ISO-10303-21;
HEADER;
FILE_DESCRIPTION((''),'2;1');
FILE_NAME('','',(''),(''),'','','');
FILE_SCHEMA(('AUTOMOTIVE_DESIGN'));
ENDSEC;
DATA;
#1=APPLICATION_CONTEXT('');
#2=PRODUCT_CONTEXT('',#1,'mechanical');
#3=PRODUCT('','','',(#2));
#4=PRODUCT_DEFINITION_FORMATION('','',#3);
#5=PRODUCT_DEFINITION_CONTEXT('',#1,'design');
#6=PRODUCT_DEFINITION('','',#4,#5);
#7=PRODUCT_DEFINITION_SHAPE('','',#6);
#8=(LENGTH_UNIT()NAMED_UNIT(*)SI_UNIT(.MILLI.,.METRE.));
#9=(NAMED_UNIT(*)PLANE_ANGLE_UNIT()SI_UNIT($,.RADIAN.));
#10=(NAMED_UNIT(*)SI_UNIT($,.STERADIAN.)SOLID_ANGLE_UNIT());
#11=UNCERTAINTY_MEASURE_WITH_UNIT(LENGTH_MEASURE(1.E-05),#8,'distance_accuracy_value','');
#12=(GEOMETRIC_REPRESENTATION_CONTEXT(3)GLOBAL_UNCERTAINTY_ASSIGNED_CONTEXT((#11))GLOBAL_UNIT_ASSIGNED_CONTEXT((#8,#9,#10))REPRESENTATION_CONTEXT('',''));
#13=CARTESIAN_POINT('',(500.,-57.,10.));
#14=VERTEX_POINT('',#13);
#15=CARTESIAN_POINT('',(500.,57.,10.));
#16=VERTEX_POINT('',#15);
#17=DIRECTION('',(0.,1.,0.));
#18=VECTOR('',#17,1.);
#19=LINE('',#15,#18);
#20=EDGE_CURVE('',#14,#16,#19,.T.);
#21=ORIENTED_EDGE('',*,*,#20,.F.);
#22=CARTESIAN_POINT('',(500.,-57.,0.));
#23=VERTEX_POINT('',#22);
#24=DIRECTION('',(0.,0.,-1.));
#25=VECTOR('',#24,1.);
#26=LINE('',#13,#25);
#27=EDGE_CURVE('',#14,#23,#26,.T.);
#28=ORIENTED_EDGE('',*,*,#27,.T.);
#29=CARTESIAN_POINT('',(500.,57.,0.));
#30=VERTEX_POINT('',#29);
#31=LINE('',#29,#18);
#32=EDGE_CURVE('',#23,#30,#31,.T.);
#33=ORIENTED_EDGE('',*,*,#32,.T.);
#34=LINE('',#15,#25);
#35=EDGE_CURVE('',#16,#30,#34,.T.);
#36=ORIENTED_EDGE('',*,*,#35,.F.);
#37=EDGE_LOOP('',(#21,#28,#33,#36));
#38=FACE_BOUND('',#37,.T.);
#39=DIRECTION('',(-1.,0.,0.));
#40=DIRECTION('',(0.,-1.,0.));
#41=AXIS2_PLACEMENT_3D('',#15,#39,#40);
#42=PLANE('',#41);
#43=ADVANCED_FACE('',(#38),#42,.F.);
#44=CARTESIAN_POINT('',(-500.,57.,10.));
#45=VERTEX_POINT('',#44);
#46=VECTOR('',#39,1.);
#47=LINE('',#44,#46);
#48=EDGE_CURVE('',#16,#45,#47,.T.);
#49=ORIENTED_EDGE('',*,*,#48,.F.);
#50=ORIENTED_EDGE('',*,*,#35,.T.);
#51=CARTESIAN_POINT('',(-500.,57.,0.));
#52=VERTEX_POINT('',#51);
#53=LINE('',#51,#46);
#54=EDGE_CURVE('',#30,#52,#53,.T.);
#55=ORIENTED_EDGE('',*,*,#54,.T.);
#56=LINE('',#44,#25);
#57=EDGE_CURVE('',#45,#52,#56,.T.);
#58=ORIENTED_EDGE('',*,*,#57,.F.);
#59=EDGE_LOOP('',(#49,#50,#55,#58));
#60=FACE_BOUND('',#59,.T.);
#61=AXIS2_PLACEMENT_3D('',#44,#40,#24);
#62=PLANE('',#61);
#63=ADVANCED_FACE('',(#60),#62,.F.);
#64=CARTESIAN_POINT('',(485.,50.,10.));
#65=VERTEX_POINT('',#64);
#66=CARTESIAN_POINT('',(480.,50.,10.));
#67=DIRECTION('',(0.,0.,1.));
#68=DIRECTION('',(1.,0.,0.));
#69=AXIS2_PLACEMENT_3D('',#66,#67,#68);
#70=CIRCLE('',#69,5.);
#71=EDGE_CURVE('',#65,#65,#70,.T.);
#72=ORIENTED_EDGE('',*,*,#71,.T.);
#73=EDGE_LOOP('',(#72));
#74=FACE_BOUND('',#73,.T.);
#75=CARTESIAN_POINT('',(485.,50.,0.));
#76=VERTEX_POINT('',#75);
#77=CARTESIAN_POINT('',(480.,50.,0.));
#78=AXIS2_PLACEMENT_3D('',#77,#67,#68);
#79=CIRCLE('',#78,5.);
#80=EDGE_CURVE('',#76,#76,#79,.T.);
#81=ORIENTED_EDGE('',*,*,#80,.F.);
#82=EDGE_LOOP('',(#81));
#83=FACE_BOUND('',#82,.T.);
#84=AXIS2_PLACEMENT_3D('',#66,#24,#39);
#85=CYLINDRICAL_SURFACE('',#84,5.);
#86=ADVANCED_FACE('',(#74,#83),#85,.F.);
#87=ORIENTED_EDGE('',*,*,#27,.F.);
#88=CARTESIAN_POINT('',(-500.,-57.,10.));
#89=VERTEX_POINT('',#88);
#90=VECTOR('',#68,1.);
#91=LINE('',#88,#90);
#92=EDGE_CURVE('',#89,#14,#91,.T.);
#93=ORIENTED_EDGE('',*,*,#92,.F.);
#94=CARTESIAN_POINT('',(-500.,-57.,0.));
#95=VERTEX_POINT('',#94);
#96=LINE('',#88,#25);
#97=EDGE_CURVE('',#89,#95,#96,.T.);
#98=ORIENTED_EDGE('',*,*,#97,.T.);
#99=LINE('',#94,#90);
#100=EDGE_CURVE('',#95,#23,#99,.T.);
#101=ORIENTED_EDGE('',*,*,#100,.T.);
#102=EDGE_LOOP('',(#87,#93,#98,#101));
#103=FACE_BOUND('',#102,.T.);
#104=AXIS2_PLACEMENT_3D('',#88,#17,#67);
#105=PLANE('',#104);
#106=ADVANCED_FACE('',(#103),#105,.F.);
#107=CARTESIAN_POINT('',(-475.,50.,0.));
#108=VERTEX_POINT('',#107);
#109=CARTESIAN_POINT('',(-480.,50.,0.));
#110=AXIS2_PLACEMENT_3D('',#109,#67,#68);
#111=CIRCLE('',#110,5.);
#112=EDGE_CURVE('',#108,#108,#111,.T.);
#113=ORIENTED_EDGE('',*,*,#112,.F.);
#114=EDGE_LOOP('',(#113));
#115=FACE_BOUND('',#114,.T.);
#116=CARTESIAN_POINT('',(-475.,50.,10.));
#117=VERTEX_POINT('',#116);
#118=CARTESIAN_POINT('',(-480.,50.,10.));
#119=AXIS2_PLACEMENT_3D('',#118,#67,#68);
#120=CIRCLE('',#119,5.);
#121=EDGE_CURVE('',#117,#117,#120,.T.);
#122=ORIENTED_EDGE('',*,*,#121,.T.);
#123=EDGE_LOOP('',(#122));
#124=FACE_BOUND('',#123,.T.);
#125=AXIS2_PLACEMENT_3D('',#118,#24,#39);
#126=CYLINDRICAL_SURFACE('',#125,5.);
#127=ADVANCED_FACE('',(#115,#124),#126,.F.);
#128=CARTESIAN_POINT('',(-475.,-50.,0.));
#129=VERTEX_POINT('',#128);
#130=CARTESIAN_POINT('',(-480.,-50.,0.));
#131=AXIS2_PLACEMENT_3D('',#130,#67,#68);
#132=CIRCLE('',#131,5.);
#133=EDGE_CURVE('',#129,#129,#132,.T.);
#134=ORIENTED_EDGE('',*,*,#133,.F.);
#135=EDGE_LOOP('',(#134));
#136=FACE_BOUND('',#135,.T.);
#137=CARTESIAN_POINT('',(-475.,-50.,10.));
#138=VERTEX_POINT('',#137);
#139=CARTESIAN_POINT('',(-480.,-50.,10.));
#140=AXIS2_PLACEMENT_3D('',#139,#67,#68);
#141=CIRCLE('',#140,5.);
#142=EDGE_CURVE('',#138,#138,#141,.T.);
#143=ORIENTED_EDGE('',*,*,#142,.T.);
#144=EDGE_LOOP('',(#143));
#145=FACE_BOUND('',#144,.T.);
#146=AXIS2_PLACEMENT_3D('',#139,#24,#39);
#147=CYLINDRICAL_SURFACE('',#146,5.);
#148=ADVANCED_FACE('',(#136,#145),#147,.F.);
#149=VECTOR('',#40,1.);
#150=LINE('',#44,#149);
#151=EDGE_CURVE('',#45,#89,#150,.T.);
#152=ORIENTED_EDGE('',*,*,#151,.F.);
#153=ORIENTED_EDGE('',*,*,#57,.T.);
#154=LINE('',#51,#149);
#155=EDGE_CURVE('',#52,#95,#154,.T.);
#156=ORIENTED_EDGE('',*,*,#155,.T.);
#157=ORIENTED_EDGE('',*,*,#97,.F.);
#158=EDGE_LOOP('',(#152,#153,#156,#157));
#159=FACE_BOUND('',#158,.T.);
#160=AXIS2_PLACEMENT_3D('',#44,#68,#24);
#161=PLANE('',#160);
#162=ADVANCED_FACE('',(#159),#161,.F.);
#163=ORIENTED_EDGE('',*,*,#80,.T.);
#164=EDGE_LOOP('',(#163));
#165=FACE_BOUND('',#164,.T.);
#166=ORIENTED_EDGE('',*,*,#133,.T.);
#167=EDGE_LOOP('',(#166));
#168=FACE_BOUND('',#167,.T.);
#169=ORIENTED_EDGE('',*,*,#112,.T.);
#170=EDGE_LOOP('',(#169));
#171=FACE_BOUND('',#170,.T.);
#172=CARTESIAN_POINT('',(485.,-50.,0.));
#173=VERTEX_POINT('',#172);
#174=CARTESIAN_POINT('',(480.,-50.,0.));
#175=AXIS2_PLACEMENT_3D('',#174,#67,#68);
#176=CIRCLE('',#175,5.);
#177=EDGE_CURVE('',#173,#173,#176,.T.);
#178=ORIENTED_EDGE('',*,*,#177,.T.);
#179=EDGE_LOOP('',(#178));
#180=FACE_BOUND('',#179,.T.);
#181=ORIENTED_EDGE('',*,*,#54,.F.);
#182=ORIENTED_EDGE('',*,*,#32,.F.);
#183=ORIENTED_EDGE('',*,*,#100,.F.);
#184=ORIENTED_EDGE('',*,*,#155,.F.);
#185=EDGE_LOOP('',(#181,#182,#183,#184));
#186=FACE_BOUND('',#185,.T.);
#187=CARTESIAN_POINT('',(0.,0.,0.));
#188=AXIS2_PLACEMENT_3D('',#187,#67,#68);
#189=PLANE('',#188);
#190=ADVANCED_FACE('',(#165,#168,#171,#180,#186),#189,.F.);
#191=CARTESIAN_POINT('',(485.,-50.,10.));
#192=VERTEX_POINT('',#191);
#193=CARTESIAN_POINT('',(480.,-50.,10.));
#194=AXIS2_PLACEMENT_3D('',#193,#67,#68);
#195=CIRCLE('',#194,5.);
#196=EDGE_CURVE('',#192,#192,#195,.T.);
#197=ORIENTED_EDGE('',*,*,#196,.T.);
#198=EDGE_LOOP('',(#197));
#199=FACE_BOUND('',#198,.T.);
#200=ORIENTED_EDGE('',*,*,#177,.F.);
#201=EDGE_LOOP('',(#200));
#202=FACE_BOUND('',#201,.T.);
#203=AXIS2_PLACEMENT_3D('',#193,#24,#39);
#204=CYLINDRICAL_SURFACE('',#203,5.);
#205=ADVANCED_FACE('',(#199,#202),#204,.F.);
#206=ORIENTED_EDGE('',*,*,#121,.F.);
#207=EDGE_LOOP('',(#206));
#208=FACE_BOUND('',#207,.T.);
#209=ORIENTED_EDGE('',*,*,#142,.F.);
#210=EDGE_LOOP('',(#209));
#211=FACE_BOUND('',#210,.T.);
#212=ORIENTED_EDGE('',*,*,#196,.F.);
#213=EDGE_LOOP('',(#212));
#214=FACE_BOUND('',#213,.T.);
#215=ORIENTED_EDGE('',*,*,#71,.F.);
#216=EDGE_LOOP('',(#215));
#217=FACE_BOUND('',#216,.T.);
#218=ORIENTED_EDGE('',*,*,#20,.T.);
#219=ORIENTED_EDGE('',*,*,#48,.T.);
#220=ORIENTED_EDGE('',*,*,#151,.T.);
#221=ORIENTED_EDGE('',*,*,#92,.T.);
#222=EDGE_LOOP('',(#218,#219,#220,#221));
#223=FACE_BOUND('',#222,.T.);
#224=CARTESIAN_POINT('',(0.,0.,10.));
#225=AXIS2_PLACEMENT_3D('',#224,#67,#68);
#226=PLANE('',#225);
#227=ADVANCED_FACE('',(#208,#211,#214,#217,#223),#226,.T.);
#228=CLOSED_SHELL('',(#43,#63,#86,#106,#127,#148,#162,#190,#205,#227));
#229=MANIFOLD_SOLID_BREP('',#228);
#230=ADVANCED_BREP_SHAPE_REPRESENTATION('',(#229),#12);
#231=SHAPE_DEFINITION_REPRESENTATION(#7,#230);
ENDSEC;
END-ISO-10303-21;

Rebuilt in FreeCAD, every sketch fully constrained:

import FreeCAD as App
import Part
import Sketcher
from FreeCAD import Vector


def add_polygon(sketch, points):
    """Adds a closed chain of lines whose ends are joined by coincident constraints."""
    first, n = sketch.GeometryCount, len(points)
    for a, b in zip(points, points[1:] + points[:1]):
        sketch.addGeometry(Part.LineSegment(App.Vector(*a, 0), App.Vector(*b, 0)), False)
    for i in range(n):
        sketch.addConstraint(Sketcher.Constraint("Coincident", first + i, 2, first + (i + 1) % n, 1))

doc = App.newDocument("Part")
body = doc.addObject("PartDesign::Body", "Body")

sketch1 = doc.addObject("Sketcher::SketchObject", "Sketch")
body.addObject(sketch1)
sketch1.AttachmentSupport = (doc.XY_Plane, [""])
sketch1.MapMode = "FlatFace"
add_polygon(sketch1, [(-500, 57), (-500, -57), (500, -57), (500, 57)])
sketch1.addGeometry(Part.Circle(Vector(-480, -50, 0), Vector(0, 0, 1), 5), False)
sketch1.addGeometry(Part.Circle(Vector(480, -50, 0), Vector(0, 0, 1), 5), False)
sketch1.addGeometry(Part.Circle(Vector(-480, 50, 0), Vector(0, 0, 1), 5), False)
sketch1.addGeometry(Part.Circle(Vector(480, 50, 0), Vector(0, 0, 1), 5), False)
sketch1.addConstraint(Sketcher.Constraint("Vertical", 0))
sketch1.addConstraint(Sketcher.Constraint("Horizontal", 1))
sketch1.addConstraint(Sketcher.Constraint("Vertical", 2))
sketch1.addConstraint(Sketcher.Constraint("Horizontal", 3))
sketch1.addConstraint(Sketcher.Constraint("Equal", 4, 5))
sketch1.addConstraint(Sketcher.Constraint("Equal", 5, 6))
sketch1.addConstraint(Sketcher.Constraint("Equal", 6, 7))
sketch1.addConstraint(Sketcher.Constraint("Symmetric", 5, 3, 6, 3, -1, 1))
sketch1.addConstraint(Sketcher.Constraint("Symmetric", 4, 3, 7, 3, -1, 1))
sketch1.addConstraint(Sketcher.Constraint("Symmetric", 0, 2, 2, 2, -1, 1))
sketch1.addConstraint(Sketcher.Constraint("Symmetric", 4, 3, 5, 3, -2))
sketch1.addConstraint(Sketcher.Constraint("Diameter", 4, 10.0))
sketch1.addConstraint(Sketcher.Constraint("DistanceX", 1, 1, 1, 2, 1000.0))
sketch1.addConstraint(Sketcher.Constraint("DistanceY", 0, 2, 0, 1, 114.0))
sketch1.addConstraint(Sketcher.Constraint("DistanceX", 4, 3, -1, 1, 480.0))
sketch1.addConstraint(Sketcher.Constraint("DistanceY", 4, 3, -1, 1, 50.0))
pad1 = doc.addObject("PartDesign::Pad", "Pad")
body.addObject(pad1)
pad1.Profile = sketch1
pad1.Length = 10

doc.recompute()
